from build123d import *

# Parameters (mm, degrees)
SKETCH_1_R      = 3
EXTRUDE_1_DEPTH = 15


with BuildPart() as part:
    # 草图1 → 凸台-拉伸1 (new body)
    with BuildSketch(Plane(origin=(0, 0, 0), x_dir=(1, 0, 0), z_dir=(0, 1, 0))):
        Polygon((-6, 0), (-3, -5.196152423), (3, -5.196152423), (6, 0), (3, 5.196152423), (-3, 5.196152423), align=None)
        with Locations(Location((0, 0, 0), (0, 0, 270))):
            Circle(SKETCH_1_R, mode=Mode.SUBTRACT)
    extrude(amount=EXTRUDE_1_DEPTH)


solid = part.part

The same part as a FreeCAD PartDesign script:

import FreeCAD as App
import Part
import Sketcher
Q = App.Units.Quantity

doc = App.newDocument("Part")
body = doc.addObject("PartDesign::Body", "Body")

# Sketch on XZ plane
sketch1 = body.newObject("Sketcher::SketchObject", "Sketch")
sketch1.AttachmentSupport = (doc.getObject("XZ_Plane"), [""])
sketch1.MapMode = "FlatFace"
sketch1.addGeometry(Part.LineSegment(App.Vector(-6, 0, 0), App.Vector(-3, 5.2, 0)), False)
sketch1.addGeometry(Part.LineSegment(App.Vector(-3, 5.2, 0), App.Vector(3, 5.2, 0)), False)
sketch1.addGeometry(Part.LineSegment(App.Vector(3, 5.2, 0), App.Vector(6, 0, 0)), False)
sketch1.addGeometry(Part.LineSegment(App.Vector(6, 0, 0), App.Vector(3, -5.2, 0)), False)
sketch1.addGeometry(Part.LineSegment(App.Vector(3, -5.2, 0), App.Vector(-3, -5.2, 0)), False)
sketch1.addGeometry(Part.LineSegment(App.Vector(-3, -5.2, 0), App.Vector(-6, 0, 0)), False)
sketch1.addGeometry(Part.Circle(App.Vector(0, 0, 0), App.Vector(0, 0, 1), 3), False)
sketch1.addConstraint(Sketcher.Constraint("Coincident", 0, 2, 1, 1))
sketch1.addConstraint(Sketcher.Constraint("Coincident", 1, 2, 2, 1))
sketch1.addConstraint(Sketcher.Constraint("Coincident", 2, 2, 3, 1))
sketch1.addConstraint(Sketcher.Constraint("Coincident", 3, 2, 4, 1))
sketch1.addConstraint(Sketcher.Constraint("Coincident", 4, 2, 5, 1))
sketch1.addConstraint(Sketcher.Constraint("Coincident", 5, 2, 0, 1))
sketch1.addConstraint(Sketcher.Constraint("Horizontal", 1))
sketch1.addConstraint(Sketcher.Constraint("Horizontal", 4))
sketch1.addConstraint(Sketcher.Constraint("Coincident", 6, 3, -1, 1))
sketch1.addConstraint(Sketcher.Constraint("Symmetric", 0, 2, 3, 2, -1, 1))
sketch1.addConstraint(Sketcher.Constraint("Symmetric", 2, 2, 5, 2, -1, 1))
sketch1.addConstraint(Sketcher.Constraint("PointOnObject", 2, 2, -1))
sketch1.addConstraint(Sketcher.Constraint("Parallel", 2, 5))
sketch1.addConstraint(Sketcher.Constraint("Vertical", 1, 2, 3, 2))
sketch1.addConstraint(Sketcher.Constraint("Diameter", 6, 6.0))
sketch1.addConstraint(Sketcher.Constraint("DistanceX", 1, 1, 1, 2, 6.0))
sketch1.addConstraint(Sketcher.Constraint("Angle", 0, Q("60 deg")))
sketch1.addConstraint(Sketcher.Constraint("Distance", 0, 6.0))
pad1 = body.newObject("PartDesign::Pad", "Pad")
pad1.Profile = sketch1
pad1.Length = 15
pad1.Reversed = True

doc.recompute()
